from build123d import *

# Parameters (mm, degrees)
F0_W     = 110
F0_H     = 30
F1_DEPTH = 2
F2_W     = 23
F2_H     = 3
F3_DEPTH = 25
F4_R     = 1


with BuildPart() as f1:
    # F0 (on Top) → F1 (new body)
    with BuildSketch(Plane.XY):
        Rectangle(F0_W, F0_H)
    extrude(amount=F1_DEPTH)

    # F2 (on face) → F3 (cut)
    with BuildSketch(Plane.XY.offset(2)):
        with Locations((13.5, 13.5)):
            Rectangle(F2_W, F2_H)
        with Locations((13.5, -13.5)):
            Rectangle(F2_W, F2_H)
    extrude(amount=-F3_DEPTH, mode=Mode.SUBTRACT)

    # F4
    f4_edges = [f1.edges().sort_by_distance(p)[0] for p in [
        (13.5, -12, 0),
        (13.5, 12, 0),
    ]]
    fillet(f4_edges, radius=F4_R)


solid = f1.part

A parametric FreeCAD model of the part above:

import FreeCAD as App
import Part
import Sketcher

V = App.Vector


def edges_at(feature, points):
    """Names of the edges that pass closest to the given points."""
    edges = feature.Shape.Edges
    near = lambda p: min(range(len(edges)), key=lambda i: edges[i].distToShape(Part.Vertex(*p))[0])
    return sorted({f"Edge{near(p) + 1}" for p in points})

doc = App.newDocument("Part")
body = doc.addObject("PartDesign::Body", "Body")

sketch1 = body.newObject("Sketcher::SketchObject", "Sketch")
sketch1.AttachmentSupport = (doc.getObject("XY_Plane"), [""])
sketch1.MapMode = "FlatFace"
sketch1.addGeometry([
    Part.LineSegment(V(-55, 15, 0), V(-55, -15, 0)),
    Part.LineSegment(V(-55, -15, 0), V(55, -15, 0)),
    Part.LineSegment(V(55, -15, 0), V(55, 15, 0)),
    Part.LineSegment(V(55, 15, 0), V(-55, 15, 0)),
], False)
sketch1.addConstraint([
    Sketcher.Constraint("Coincident", 0, 2, 1, 1),
    Sketcher.Constraint("Coincident", 1, 2, 2, 1),
    Sketcher.Constraint("Coincident", 2, 2, 3, 1),
    Sketcher.Constraint("Coincident", 3, 2, 0, 1),
    Sketcher.Constraint("Vertical", 0),
    Sketcher.Constraint("Horizontal", 1),
    Sketcher.Constraint("Vertical", 2),
    Sketcher.Constraint("Horizontal", 3),
    Sketcher.Constraint("Symmetric", 0, 2, 2, 2, -1, 1),
    Sketcher.Constraint("DistanceX", 1, 1, 1, 2, 110.0),
    Sketcher.Constraint("DistanceY", 0, 2, 0, 1, 30.0),
])
pad1 = body.newObject("PartDesign::Pad", "Pad")
pad1.Profile = sketch1
pad1.Length = 2

sketch2 = body.newObject("Sketcher::SketchObject", "Sketch001")
sketch2.AttachmentSupport = (doc.getObject("XY_Plane"), [""])
sketch2.MapMode = "FlatFace"
sketch2.AttachmentOffset = App.Placement(V(0, 0, 2), App.Rotation())
sketch2.addGeometry([
    Part.LineSegment(V(2, 15, 0), V(2, 12, 0)),
    Part.LineSegment(V(2, 12, 0), V(25, 12, 0)),
    Part.LineSegment(V(25, 12, 0), V(25, 15, 0)),
    Part.LineSegment(V(25, 15, 0), V(2, 15, 0)),
    Part.LineSegment(V(2, -12, 0), V(2, -15, 0)),
    Part.LineSegment(V(2, -15, 0), V(25, -15, 0)),
    Part.LineSegment(V(25, -15, 0), V(25, -12, 0)),
    Part.LineSegment(V(25, -12, 0), V(2, -12, 0)),
], False)
sketch2.addConstraint([
    Sketcher.Constraint("Coincident", 0, 2, 1, 1),
    Sketcher.Constraint("Coincident", 1, 2, 2, 1),
    Sketcher.Constraint("Coincident", 2, 2, 3, 1),
    Sketcher.Constraint("Coincident", 3, 2, 0, 1),
    Sketcher.Constraint("Coincident", 4, 2, 5, 1),
    Sketcher.Constraint("Coincident", 5, 2, 6, 1),
    Sketcher.Constraint("Coincident", 6, 2, 7, 1),
    Sketcher.Constraint("Coincident", 7, 2, 4, 1),
    Sketcher.Constraint("Vertical", 0),
    Sketcher.Constraint("Horizontal", 1),
    Sketcher.Constraint("Vertical", 2),
    Sketcher.Constraint("Horizontal", 3),
    Sketcher.Constraint("Vertical", 4),
    Sketcher.Constraint("Horizontal", 5),
    Sketcher.Constraint("Vertical", 6),
    Sketcher.Constraint("Horizontal", 7),
    Sketcher.Constraint("Symmetric", 3, 2, 4, 2, -1),
    Sketcher.Constraint("Symmetric", 1, 2, 6, 2, -1),
    Sketcher.Constraint("DistanceX", 1, 1, 1, 2, 23.0),
    Sketcher.Constraint("DistanceY", 0, 2, 0, 1, 3.0),
    Sketcher.Constraint("DistanceX", -1, 1, 0, 2, 2.0),
    Sketcher.Constraint("DistanceY", -1, 1, 0, 2, 12.0),
])
pocket1 = body.newObject("PartDesign::Pocket", "Pocket")
pocket1.Profile = sketch2
pocket1.Length = 25
doc.recompute()

fillet = body.newObject("PartDesign::Fillet", "Fillet")
fillet.Base = (pocket1, edges_at(pocket1, [(13.5, -12, 0), (13.5, 12, 0)]))
fillet.Radius = 1

doc.recompute()
